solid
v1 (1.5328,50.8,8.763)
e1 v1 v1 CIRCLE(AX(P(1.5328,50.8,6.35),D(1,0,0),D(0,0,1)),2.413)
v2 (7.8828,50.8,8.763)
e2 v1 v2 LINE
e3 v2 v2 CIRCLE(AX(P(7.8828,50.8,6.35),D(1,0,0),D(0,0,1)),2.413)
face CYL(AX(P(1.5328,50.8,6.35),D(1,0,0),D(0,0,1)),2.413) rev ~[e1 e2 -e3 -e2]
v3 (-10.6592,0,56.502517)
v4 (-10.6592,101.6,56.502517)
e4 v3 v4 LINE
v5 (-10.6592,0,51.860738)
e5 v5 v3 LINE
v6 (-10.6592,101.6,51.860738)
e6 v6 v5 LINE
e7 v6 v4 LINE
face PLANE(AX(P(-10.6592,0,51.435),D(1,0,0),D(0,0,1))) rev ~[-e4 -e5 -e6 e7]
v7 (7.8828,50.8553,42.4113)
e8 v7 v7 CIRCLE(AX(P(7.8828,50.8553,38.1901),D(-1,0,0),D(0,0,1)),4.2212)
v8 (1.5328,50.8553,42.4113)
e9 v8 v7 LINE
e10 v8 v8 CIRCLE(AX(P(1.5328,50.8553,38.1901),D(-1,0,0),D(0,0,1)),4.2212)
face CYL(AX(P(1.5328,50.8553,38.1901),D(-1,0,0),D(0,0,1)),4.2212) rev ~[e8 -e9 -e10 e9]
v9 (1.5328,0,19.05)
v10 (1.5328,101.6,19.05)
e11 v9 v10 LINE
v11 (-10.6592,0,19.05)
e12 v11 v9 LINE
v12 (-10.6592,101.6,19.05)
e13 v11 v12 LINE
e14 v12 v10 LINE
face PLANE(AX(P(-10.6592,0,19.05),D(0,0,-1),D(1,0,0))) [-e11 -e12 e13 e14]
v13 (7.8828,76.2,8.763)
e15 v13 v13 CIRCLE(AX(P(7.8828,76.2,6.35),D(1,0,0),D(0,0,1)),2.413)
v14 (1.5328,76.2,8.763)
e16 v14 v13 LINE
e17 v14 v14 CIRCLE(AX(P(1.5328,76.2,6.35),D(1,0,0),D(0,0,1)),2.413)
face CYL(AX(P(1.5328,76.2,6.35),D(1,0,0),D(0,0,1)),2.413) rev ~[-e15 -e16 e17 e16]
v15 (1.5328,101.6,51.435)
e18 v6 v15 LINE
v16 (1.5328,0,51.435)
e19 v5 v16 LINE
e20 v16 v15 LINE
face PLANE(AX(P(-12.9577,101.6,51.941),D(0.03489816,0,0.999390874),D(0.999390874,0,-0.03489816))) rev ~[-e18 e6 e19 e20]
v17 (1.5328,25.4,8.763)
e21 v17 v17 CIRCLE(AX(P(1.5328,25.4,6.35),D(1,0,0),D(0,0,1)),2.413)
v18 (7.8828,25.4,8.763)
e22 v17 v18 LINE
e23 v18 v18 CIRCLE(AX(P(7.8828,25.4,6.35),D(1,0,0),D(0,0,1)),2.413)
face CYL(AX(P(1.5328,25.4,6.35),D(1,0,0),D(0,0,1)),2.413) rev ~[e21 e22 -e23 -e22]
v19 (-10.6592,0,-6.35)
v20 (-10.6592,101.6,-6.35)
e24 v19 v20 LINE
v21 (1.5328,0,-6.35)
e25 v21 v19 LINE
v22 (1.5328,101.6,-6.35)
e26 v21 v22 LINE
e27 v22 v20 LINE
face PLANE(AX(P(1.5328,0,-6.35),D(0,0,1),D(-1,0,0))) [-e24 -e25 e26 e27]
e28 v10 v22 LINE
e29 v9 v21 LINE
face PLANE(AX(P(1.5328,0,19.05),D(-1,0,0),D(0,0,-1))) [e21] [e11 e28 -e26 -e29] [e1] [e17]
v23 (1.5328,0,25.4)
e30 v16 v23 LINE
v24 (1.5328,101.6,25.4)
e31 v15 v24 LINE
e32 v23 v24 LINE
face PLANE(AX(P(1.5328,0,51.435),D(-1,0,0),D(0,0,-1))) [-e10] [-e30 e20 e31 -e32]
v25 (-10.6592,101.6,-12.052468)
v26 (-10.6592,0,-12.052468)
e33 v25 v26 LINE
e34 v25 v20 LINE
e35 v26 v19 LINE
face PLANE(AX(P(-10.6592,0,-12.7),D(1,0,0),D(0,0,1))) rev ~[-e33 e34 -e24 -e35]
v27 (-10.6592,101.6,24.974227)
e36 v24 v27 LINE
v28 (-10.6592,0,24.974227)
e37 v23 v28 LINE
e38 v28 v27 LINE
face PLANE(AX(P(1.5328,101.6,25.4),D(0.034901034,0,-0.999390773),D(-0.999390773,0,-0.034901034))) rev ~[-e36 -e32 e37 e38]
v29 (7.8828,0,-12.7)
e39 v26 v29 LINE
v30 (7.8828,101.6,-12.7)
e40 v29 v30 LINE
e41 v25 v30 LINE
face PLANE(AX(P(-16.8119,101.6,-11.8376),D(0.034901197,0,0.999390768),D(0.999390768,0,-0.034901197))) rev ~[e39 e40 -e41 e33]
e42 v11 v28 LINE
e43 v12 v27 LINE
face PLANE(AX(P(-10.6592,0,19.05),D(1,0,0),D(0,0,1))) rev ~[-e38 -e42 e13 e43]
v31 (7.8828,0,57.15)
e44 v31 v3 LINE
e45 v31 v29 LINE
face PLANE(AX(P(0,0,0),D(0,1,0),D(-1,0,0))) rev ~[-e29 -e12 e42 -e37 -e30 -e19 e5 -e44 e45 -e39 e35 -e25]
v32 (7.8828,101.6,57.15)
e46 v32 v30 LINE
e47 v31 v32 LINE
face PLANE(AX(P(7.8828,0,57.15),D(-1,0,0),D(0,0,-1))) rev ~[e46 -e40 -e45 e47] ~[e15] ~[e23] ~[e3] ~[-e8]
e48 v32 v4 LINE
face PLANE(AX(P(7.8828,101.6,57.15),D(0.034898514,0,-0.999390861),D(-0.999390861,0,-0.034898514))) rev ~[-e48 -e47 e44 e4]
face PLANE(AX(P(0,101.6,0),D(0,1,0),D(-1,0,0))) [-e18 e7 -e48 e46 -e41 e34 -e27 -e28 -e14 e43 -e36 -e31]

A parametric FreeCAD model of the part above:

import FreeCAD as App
import Part
import Sketcher
from FreeCAD import Vector
Q = App.Units.Quantity

doc = App.newDocument("Part")
body = doc.addObject("PartDesign::Body", "Body")

# Sketch on XZ plane
sketch1 = body.newObject("Sketcher::SketchObject", "Sketch")
sketch1.AttachmentSupport = (doc.getObject("XZ_Plane"), [""])
sketch1.MapMode = "FlatFace"
sketch1.addGeometry([
    Part.LineSegment(Vector(-11, 51, 0), Vector(-11, 57, 0)),  # 0
    Part.LineSegment(Vector(-11, 57, 0), Vector(8, 57, 0)),  # 1
    Part.LineSegment(Vector(8, 57, 0), Vector(8, -13, 0)),  # 2
    Part.LineSegment(Vector(8, -13, 0), Vector(-11, -13, 0)),  # 3
    Part.LineSegment(Vector(-11, -13, 0), Vector(-11, -6, 0)),  # 4
    Part.LineSegment(Vector(-11, -6, 0), Vector(2, -6, 0)),  # 5
    Part.LineSegment(Vector(2, -6, 0), Vector(2, 19, 0)),  # 6
    Part.LineSegment(Vector(2, 19, 0), Vector(-11, 19, 0)),  # 7
    Part.LineSegment(Vector(-11, 19, 0), Vector(-11, 25, 0)),  # 8
    Part.LineSegment(Vector(-11, 25, 0), Vector(2, 25, 0)),  # 9
    Part.LineSegment(Vector(2, 25, 0), Vector(2, 51, 0)),  # 10
    Part.LineSegment(Vector(2, 51, 0), Vector(-11, 51, 0)),  # 11
], False)
sketch1.addConstraint([
    Sketcher.Constraint("Coincident", 0, 2, 1, 1),
    Sketcher.Constraint("Coincident", 1, 2, 2, 1),
    Sketcher.Constraint("Coincident", 2, 2, 3, 1),
    Sketcher.Constraint("Coincident", 3, 2, 4, 1),
    Sketcher.Constraint("Coincident", 4, 2, 5, 1),
    Sketcher.Constraint("Coincident", 5, 2, 6, 1),
    Sketcher.Constraint("Coincident", 6, 2, 7, 1),
    Sketcher.Constraint("Coincident", 7, 2, 8, 1),
    Sketcher.Constraint("Coincident", 8, 2, 9, 1),
    Sketcher.Constraint("Coincident", 9, 2, 10, 1),
    Sketcher.Constraint("Coincident", 10, 2, 11, 1),
    Sketcher.Constraint("Coincident", 11, 2, 0, 1),
    Sketcher.Constraint("Vertical", 0),
    Sketcher.Constraint("Horizontal", 1),
    Sketcher.Constraint("Vertical", 2),
    Sketcher.Constraint("Horizontal", 3),
    Sketcher.Constraint("Vertical", 4),
    Sketcher.Constraint("Horizontal", 5),
    Sketcher.Constraint("Vertical", 6),
    Sketcher.Constraint("Horizontal", 7),
    Sketcher.Constraint("Vertical", 8),
    Sketcher.Constraint("Horizontal", 9),
    Sketcher.Constraint("Vertical", 10),
    Sketcher.Constraint("Horizontal", 11),
    Sketcher.Constraint("Vertical", 0, 2, 3, 2),
    Sketcher.Constraint("Vertical", 4, 2, 7, 2),
    Sketcher.Constraint("Vertical", 6, 2, 9, 2),
    Sketcher.Constraint("Equal", 4, 8),
    Sketcher.Constraint("DistanceY", 6, 1, 6, 2, Q("1 in")),
    Sketcher.Constraint("DistanceY", -1, 1, 8, 2, Q("1 in")),
    Sketcher.Constraint("DistanceX", 1, 1, 1, 2, Q("0.73 in")),
    Sketcher.Constraint("DistanceY", 4, 1, 4, 2, Q("0.25 in")),
    Sketcher.Constraint("DistanceY", 0, 1, 0, 2, Q("0.225 in")),
    Sketcher.Constraint("DistanceY", 10, 1, 10, 2, Q("1.025 in")),
    Sketcher.Constraint("DistanceX", 5, 2, 2, 2, Q("0.25 in")),
    Sketcher.Constraint("DistanceX", 0, 2, -1, 1, 10.6592),
])
pad1 = body.newObject("PartDesign::Pad", "Pad")
pad1.Profile = sketch1
pad1.Length = Q("4 in")
pad1.Reversed = True

# Sketch on YZ plane
sketch2 = body.newObject("Sketcher::SketchObject", "Sketch001")
sketch2.AttachmentSupport = (doc.getObject("YZ_Plane"), [""])
sketch2.MapMode = "FlatFace"
sketch2.AttachmentOffset = App.Placement(Vector(0, 0, 1.5328), App.Rotation())
sketch2.addGeometry([
    Part.Circle(Vector(25.4, 6.3, 0), Vector(0, 0, 1), 2.4),
    Part.Circle(Vector(50.8, 6.3, 0), Vector(0, 0, 1), 2.4),
    Part.Circle(Vector(76.2, 6.3, 0), Vector(0, 0, 1), 2.4),
], False)
sketch2.addConstraint([
    Sketcher.Constraint("Equal", 0, 1),
    Sketcher.Constraint("Equal", 1, 2),
    Sketcher.Constraint("Horizontal", 0, 3, 1, 3),
    Sketcher.Constraint("Horizontal", 1, 3, 2, 3),
    Sketcher.Constraint("Diameter", 0, Q("0.19 in")),
    Sketcher.Constraint("DistanceX", -1, 1, 0, 3, Q("1 in")),
    Sketcher.Constraint("DistanceX", -1, 1, 1, 3, Q("2 in")),
    Sketcher.Constraint("DistanceX", -1, 1, 2, 3, Q("3 in")),
    Sketcher.Constraint("DistanceY", -1, 1, 0, 3, Q("0.25 in")),
])
doc.recompute()
hole = body.newObject("PartDesign::Hole", "Hole")
hole.Profile = sketch2
hole.ThreadType = "None"
hole.Diameter = Q("0.19 in")
hole.DepthType = "Dimension"
hole.Depth = Q("1 in")
hole.DrillPoint = "Angled"
hole.DrillPointAngle = 118
hole.Reversed = True

# Sketch on XZ plane
sketch3 = body.newObject("Sketcher::SketchObject", "Sketch002")
sketch3.AttachmentSupport = (doc.getObject("XZ_Plane"), [""])
sketch3.MapMode = "FlatFace"
sketch3.AttachmentOffset = App.Placement(Vector(0, 0, -4 * 25.4), App.Rotation())
sketch3.addGeometry([
    Part.LineSegment(Vector(-10.79, 25.4, 0), Vector(1.53, 25.4, 0)),
    Part.LineSegment(Vector(1.53, 25.4, 0), Vector(-10.79, 24.97, 0)),
    Part.LineSegment(Vector(-10.79, 24.97, 0), Vector(-10.79, 25.4, 0)),
], False)
sketch3.addConstraint([
    Sketcher.Constraint("Coincident", 0, 2, 1, 1),
    Sketcher.Constraint("Coincident", 1, 2, 2, 1),
    Sketcher.Constraint("Coincident", 2, 2, 0, 1),
    Sketcher.Constraint("Horizontal", 0),
    Sketcher.Constraint("Vertical", 2),
    Sketcher.Constraint("DistanceY", -1, 1, 0, 2, Q("1 in")),
    Sketcher.Constraint("Angle", 1, Q("-178 deg")),
    Sketcher.Constraint("DistanceX", 0, 1, 0, 2, 12.3245),
    Sketcher.Constraint("DistanceX", -1, 1, 0, 2, 1.5328),
])
pocket1 = body.newObject("PartDesign::Pocket", "Pocket")
pocket1.Profile = sketch3
pocket1.Length = Q("4.375 in")
pocket1.Reversed = True

# Sketch on XZ plane
sketch4 = body.newObject("Sketcher::SketchObject", "Sketch003")
sketch4.AttachmentSupport = (doc.getObject("XZ_Plane"), [""])
sketch4.MapMode = "FlatFace"
sketch4.AttachmentOffset = App.Placement(Vector(0, 0, -4 * 25.4), App.Rotation())
sketch4.addGeometry([
    Part.LineSegment(Vector(-13, 51.9, 0), Vector(1.5, 51.4, 0)),
    Part.LineSegment(Vector(1.5, 51.4, 0), Vector(-13, 51.4, 0)),
    Part.LineSegment(Vector(-13, 51.4, 0), Vector(-13, 51.9, 0)),
], False)
sketch4.addConstraint([
    Sketcher.Constraint("Coincident", 0, 2, 1, 1),
    Sketcher.Constraint("Coincident", 1, 2, 2, 1),
    Sketcher.Constraint("Coincident", 2, 2, 0, 1),
    Sketcher.Constraint("Horizontal", 1),
    Sketcher.Constraint("Vertical", 2),
    Sketcher.Constraint("Angle", 0, Q("-2 deg")),
    Sketcher.Constraint("DistanceX", 1, 2, 1, 1, Q("0.5705 in")),
    Sketcher.Constraint("DistanceY", -1, 1, 0, 2, Q("2.025 in")),
    Sketcher.Constraint("DistanceX", -1, 1, 0, 2, 1.5328),
])
pocket2 = body.newObject("PartDesign::Pocket", "Pocket001")
pocket2.Profile = sketch4
pocket2.Length = Q("4.6875 in")
pocket2.Reversed = True

# Sketch on XZ plane
sketch5 = body.newObject("Sketcher::SketchObject", "Sketch004")
sketch5.AttachmentSupport = (doc.getObject("XZ_Plane"), [""])
sketch5.MapMode = "FlatFace"
sketch5.AttachmentOffset = App.Placement(Vector(0, 0, -4 * 25.4), App.Rotation())
sketch5.addGeometry([
    Part.LineSegment(Vector(-13, 57.1, 0), Vector(7.9, 57.1, 0)),
    Part.LineSegment(Vector(7.9, 57.1, 0), Vector(-13, 56.4, 0)),
    Part.LineSegment(Vector(-13, 56.4, 0), Vector(-13, 57.1, 0)),
], False)
sketch5.addConstraint([
    Sketcher.Constraint("Coincident", 0, 2, 1, 1),
    Sketcher.Constraint("Coincident", 1, 2, 2, 1),
    Sketcher.Constraint("Coincident", 2, 2, 0, 1),
    Sketcher.Constraint("Horizontal", 0),
    Sketcher.Constraint("Angle", 1, Q("-178 deg")),
    Sketcher.Constraint("DistanceY", -1, 1, 0, 2, Q("2.25 in")),
    Sketcher.Constraint("DistanceX", 0, 1, 0, 2, Q("0.8222 in")),
    Sketcher.Constraint("Distance", 1, 20.9379),
    Sketcher.Constraint("DistanceX", -1, 1, 0, 2, 7.8828),
])
pocket3 = body.newObject("PartDesign::Pocket", "Pocket002")
pocket3.Profile = sketch5
pocket3.Length = Q("7.75 in")
pocket3.Reversed = True

# Sketch on XZ plane
sketch6 = body.newObject("Sketcher::SketchObject", "Sketch005")
sketch6.AttachmentSupport = (doc.getObject("XZ_Plane"), [""])
sketch6.MapMode = "FlatFace"
sketch6.AttachmentOffset = App.Placement(Vector(0, 0, -4 * 25.4), App.Rotation())
sketch6.addGeometry([
    Part.LineSegment(Vector(-16.8, -11.8, 0), Vector(7.9, -12.7, 0)),
    Part.LineSegment(Vector(7.9, -12.7, 0), Vector(-16.8, -12.7, 0)),
    Part.LineSegment(Vector(-16.8, -12.7, 0), Vector(-16.8, -11.8, 0)),
], False)
sketch6.addConstraint([
    Sketcher.Constraint("Coincident", 0, 2, 1, 1),
    Sketcher.Constraint("Coincident", 1, 2, 2, 1),
    Sketcher.Constraint("Coincident", 2, 2, 0, 1),
    Sketcher.Constraint("Horizontal", 1),
    Sketcher.Constraint("Vertical", 2),
    Sketcher.Constraint("Angle", 0, Q("-2 deg")),
    Sketcher.Constraint("DistanceY", 0, 2, -1, 1, Q("0.5 in")),
    Sketcher.Constraint("DistanceX", 1, 2, 1, 1, 24.6947),
    Sketcher.Constraint("DistanceX", -1, 1, 0, 2, 7.8828),
])
pocket4 = body.newObject("PartDesign::Pocket", "Pocket003")
pocket4.Profile = sketch6
pocket4.Length = Q("13.1875 in")
pocket4.Reversed = True

# Sketch on YZ plane
sketch7 = body.newObject("Sketcher::SketchObject", "Sketch006")
sketch7.AttachmentSupport = (doc.getObject("YZ_Plane"), [""])
sketch7.MapMode = "FlatFace"
sketch7.AttachmentOffset = App.Placement(Vector(0, 0, 1.5328), App.Rotation())
sketch7.addGeometry(Part.Circle(Vector(50.9, 38.2, 0), Vector(0, 0, 1), 4.2), False)
sketch7.addConstraint([
    Sketcher.Constraint("Diameter", 0, 8.4424),
    Sketcher.Constraint("DistanceX", -1, 1, 0, 3, 50.8553),
    Sketcher.Constraint("DistanceY", -1, 1, 0, 3, 38.19),
])
pocket5 = body.newObject("PartDesign::Pocket", "Pocket004")
pocket5.Profile = sketch7
pocket5.Length = Q("2.3125 in")
pocket5.Reversed = True

doc.recompute()
